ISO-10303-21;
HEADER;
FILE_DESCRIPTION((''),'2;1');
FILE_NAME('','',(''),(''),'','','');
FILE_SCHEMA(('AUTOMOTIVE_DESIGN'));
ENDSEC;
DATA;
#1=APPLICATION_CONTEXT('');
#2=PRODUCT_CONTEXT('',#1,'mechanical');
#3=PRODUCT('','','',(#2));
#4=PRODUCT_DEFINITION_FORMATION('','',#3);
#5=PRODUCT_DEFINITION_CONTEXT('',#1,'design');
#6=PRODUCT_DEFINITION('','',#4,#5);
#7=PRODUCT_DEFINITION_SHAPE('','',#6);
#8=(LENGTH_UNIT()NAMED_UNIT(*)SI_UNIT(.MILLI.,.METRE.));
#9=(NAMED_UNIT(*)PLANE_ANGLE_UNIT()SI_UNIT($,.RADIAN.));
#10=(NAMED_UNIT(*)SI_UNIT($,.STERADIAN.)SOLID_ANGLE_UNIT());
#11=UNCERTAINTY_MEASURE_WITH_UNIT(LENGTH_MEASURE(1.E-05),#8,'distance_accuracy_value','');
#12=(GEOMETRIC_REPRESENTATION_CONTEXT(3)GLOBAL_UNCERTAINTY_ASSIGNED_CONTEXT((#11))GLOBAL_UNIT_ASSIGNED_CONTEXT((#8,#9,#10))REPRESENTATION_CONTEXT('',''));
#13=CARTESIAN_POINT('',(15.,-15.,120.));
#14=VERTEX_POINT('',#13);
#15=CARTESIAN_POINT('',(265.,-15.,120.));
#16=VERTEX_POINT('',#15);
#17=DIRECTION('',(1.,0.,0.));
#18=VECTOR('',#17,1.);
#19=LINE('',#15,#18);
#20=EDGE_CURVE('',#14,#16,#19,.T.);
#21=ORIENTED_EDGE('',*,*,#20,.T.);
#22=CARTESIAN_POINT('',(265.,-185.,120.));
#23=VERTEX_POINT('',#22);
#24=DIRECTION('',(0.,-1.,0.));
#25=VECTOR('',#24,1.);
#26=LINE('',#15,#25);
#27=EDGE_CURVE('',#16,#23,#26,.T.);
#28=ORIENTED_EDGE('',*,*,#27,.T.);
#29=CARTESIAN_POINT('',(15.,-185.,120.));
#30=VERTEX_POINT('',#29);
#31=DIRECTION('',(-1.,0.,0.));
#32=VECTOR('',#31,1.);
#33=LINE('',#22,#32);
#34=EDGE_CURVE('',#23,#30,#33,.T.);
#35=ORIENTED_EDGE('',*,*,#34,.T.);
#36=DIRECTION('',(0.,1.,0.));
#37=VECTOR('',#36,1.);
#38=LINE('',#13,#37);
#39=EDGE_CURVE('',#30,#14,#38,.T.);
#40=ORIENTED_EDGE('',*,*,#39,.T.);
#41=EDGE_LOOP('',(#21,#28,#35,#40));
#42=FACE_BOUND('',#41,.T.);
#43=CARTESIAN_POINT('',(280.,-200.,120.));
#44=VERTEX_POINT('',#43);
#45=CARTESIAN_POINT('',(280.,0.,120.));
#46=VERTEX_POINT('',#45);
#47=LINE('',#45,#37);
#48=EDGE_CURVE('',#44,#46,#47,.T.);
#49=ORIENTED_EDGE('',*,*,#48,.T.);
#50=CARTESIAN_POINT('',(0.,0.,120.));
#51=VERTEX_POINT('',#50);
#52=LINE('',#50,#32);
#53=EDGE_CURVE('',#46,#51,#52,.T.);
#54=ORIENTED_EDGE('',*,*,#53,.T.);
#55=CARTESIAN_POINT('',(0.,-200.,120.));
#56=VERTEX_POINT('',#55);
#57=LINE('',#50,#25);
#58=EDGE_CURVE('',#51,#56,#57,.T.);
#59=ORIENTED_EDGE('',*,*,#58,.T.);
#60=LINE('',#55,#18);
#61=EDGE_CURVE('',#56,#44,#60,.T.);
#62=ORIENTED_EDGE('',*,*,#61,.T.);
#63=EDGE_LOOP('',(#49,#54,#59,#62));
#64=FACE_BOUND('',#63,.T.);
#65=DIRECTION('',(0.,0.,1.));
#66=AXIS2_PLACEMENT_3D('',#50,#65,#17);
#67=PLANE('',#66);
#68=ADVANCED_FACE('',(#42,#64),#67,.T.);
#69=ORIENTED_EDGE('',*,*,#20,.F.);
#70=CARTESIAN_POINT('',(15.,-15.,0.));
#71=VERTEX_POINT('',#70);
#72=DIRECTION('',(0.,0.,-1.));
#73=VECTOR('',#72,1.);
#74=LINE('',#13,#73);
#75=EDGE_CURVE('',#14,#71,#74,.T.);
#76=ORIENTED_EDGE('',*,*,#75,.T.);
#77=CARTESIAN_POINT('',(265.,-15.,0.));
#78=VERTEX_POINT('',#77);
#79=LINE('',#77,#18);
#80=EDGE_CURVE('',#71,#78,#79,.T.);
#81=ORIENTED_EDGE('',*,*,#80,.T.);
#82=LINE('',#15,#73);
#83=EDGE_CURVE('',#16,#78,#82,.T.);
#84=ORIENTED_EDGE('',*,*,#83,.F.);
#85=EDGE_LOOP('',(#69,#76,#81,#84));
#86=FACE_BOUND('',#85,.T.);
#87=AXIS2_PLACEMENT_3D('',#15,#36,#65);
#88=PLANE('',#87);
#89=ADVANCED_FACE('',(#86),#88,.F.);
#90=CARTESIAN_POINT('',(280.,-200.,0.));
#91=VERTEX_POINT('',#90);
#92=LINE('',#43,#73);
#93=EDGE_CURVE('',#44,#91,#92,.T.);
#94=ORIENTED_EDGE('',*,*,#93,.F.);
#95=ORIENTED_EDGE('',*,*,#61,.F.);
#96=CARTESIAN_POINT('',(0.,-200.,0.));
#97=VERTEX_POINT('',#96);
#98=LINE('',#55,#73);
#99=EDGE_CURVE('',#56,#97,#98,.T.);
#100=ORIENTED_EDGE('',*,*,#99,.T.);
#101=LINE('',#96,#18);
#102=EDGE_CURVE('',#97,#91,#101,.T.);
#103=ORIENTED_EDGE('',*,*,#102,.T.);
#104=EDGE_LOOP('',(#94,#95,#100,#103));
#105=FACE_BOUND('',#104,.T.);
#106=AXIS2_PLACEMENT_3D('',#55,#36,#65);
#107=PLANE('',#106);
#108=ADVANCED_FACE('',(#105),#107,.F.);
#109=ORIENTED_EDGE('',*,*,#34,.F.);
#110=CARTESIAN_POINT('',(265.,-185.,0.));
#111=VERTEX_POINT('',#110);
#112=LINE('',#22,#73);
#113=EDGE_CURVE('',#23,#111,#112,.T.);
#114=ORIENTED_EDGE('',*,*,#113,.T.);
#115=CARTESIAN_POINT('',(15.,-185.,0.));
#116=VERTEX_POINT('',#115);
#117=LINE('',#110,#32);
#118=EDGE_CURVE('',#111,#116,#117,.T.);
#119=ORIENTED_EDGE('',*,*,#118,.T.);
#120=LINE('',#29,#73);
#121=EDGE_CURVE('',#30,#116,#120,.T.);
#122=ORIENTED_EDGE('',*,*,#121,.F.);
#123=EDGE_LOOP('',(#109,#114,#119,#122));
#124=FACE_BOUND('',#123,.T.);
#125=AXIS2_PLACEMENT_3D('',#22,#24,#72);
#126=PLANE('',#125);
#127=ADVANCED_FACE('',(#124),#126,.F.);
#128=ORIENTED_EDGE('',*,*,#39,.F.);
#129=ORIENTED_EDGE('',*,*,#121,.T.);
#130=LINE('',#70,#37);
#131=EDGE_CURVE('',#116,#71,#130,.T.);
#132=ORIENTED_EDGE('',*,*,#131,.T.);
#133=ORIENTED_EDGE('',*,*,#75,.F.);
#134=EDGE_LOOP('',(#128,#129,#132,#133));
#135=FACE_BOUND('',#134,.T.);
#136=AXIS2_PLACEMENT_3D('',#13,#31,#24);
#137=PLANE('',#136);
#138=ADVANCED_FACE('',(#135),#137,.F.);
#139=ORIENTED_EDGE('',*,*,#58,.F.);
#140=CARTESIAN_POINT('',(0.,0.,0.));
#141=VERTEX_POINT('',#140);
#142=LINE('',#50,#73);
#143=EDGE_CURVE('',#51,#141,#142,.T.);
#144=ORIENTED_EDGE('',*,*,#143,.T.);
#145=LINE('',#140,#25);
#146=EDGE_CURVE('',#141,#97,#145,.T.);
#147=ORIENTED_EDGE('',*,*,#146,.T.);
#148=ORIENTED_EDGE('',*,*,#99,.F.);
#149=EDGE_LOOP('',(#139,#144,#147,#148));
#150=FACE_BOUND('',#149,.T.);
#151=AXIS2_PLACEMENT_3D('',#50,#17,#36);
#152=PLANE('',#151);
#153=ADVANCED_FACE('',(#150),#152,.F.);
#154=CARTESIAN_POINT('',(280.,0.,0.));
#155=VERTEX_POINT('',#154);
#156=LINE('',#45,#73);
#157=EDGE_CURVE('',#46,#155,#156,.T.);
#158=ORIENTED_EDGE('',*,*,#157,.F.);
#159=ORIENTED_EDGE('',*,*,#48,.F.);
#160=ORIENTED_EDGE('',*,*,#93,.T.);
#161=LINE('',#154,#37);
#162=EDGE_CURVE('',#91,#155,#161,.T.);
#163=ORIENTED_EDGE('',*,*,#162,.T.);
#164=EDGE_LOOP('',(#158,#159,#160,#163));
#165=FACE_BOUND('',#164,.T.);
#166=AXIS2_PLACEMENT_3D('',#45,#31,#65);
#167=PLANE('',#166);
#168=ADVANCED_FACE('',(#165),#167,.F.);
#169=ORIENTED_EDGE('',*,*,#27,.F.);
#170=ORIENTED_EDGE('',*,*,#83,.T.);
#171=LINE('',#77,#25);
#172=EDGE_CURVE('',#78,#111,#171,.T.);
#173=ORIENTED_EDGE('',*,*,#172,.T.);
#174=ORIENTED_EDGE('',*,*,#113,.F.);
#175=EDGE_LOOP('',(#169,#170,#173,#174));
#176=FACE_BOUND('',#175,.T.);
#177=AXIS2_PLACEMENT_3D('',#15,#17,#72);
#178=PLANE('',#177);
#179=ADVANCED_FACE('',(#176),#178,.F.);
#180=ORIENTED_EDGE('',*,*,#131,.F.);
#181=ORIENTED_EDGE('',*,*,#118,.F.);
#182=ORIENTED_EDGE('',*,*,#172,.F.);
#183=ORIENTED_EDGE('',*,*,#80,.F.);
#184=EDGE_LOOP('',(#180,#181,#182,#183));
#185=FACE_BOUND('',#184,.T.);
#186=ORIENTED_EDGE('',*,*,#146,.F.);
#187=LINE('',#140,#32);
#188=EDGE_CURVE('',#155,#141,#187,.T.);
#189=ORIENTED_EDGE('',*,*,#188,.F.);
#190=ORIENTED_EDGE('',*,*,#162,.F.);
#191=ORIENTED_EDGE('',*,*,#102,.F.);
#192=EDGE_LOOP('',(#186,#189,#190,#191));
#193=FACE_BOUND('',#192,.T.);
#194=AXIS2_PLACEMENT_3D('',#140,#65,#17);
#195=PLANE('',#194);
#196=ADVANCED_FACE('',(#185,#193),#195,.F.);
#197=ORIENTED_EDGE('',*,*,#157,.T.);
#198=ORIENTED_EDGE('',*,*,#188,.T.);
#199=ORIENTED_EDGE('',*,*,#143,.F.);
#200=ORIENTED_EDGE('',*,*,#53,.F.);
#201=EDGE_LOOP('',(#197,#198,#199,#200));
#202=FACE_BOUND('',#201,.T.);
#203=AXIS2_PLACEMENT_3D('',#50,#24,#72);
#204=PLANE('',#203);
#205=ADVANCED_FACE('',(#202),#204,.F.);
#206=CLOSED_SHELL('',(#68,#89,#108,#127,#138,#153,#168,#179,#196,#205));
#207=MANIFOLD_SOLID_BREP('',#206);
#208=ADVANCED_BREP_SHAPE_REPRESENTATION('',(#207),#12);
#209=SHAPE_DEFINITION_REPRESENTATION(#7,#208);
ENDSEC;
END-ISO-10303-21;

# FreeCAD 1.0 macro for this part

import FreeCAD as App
import Part
import Sketcher

doc = App.newDocument("Part")
body = doc.addObject("PartDesign::Body", "Body")

sketch1 = doc.addObject("Sketcher::SketchObject", "Sketch")
body.addObject(sketch1)
sketch1.AttachmentSupport = (doc.XY_Plane, [""])
sketch1.MapMode = "FlatFace"
sketch1.addGeometry(Part.LineSegment(App.Vector(0, 0, 0), App.Vector(0, -200, 0)), False)
sketch1.addGeometry(Part.LineSegment(App.Vector(0, -200, 0), App.Vector(280, -200, 0)), False)
sketch1.addGeometry(Part.LineSegment(App.Vector(280, -200, 0), App.Vector(280, 0, 0)), False)
sketch1.addGeometry(Part.LineSegment(App.Vector(280, 0, 0), App.Vector(0, 0, 0)), False)
sketch1.addConstraint(Sketcher.Constraint("Coincident", 0, 2, 1, 1))
sketch1.addConstraint(Sketcher.Constraint("Coincident", 1, 2, 2, 1))
sketch1.addConstraint(Sketcher.Constraint("Coincident", 2, 2, 3, 1))
sketch1.addConstraint(Sketcher.Constraint("Coincident", 3, 2, 0, 1))
sketch1.addConstraint(Sketcher.Constraint("Vertical", 0))
sketch1.addConstraint(Sketcher.Constraint("Horizontal", 1))
sketch1.addConstraint(Sketcher.Constraint("Vertical", 2))
sketch1.addConstraint(Sketcher.Constraint("Horizontal", 3))
sketch1.addConstraint(Sketcher.Constraint("Coincident", 3, 2, -1, 1))
sketch1.addConstraint(Sketcher.Constraint("DistanceX", 1, 1, 1, 2, 280.0))
sketch1.addConstraint(Sketcher.Constraint("DistanceY", 0, 2, 0, 1, 200.0))
pad1 = doc.addObject("PartDesign::Pad", "Pad")
body.addObject(pad1)
pad1.Profile = sketch1
pad1.Length = 120

sketch2 = doc.addObject("Sketcher::SketchObject", "Sketch001")
body.addObject(sketch2)
sketch2.AttachmentSupport = (doc.XY_Plane, [""])
sketch2.MapMode = "FlatFace"
sketch2.addGeometry(Part.LineSegment(App.Vector(265, -15, 0), App.Vector(265, -185, 0)), False)
sketch2.addGeometry(Part.LineSegment(App.Vector(265, -185, 0), App.Vector(15, -185, 0)), False)
sketch2.addGeometry(Part.LineSegment(App.Vector(15, -185, 0), App.Vector(15, -15, 0)), False)
sketch2.addGeometry(Part.LineSegment(App.Vector(15, -15, 0), App.Vector(265, -15, 0)), False)
sketch2.addConstraint(Sketcher.Constraint("Coincident", 0, 2, 1, 1))
sketch2.addConstraint(Sketcher.Constraint("Coincident", 1, 2, 2, 1))
sketch2.addConstraint(Sketcher.Constraint("Coincident", 2, 2, 3, 1))
sketch2.addConstraint(Sketcher.Constraint("Coincident", 3, 2, 0, 1))
sketch2.addConstraint(Sketcher.Constraint("Vertical", 0))
sketch2.addConstraint(Sketcher.Constraint("Horizontal", 1))
sketch2.addConstraint(Sketcher.Constraint("Vertical", 2))
sketch2.addConstraint(Sketcher.Constraint("Horizontal", 3))
sketch2.addConstraint(Sketcher.Constraint("DistanceX", 1, 2, 1, 1, 250.0))
sketch2.addConstraint(Sketcher.Constraint("DistanceY", 0, 2, 0, 1, 170.0))
sketch2.addConstraint(Sketcher.Constraint("DistanceX", -1, 1, 0, 2, 265.0))
sketch2.addConstraint(Sketcher.Constraint("DistanceY", 0, 2, -1, 1, 185.0))
pocket1 = doc.addObject("PartDesign::Pocket", "Pocket")
body.addObject(pocket1)
pocket1.Profile = sketch2
pocket1.Length = 120
pocket1.Reversed = True

doc.recompute()
